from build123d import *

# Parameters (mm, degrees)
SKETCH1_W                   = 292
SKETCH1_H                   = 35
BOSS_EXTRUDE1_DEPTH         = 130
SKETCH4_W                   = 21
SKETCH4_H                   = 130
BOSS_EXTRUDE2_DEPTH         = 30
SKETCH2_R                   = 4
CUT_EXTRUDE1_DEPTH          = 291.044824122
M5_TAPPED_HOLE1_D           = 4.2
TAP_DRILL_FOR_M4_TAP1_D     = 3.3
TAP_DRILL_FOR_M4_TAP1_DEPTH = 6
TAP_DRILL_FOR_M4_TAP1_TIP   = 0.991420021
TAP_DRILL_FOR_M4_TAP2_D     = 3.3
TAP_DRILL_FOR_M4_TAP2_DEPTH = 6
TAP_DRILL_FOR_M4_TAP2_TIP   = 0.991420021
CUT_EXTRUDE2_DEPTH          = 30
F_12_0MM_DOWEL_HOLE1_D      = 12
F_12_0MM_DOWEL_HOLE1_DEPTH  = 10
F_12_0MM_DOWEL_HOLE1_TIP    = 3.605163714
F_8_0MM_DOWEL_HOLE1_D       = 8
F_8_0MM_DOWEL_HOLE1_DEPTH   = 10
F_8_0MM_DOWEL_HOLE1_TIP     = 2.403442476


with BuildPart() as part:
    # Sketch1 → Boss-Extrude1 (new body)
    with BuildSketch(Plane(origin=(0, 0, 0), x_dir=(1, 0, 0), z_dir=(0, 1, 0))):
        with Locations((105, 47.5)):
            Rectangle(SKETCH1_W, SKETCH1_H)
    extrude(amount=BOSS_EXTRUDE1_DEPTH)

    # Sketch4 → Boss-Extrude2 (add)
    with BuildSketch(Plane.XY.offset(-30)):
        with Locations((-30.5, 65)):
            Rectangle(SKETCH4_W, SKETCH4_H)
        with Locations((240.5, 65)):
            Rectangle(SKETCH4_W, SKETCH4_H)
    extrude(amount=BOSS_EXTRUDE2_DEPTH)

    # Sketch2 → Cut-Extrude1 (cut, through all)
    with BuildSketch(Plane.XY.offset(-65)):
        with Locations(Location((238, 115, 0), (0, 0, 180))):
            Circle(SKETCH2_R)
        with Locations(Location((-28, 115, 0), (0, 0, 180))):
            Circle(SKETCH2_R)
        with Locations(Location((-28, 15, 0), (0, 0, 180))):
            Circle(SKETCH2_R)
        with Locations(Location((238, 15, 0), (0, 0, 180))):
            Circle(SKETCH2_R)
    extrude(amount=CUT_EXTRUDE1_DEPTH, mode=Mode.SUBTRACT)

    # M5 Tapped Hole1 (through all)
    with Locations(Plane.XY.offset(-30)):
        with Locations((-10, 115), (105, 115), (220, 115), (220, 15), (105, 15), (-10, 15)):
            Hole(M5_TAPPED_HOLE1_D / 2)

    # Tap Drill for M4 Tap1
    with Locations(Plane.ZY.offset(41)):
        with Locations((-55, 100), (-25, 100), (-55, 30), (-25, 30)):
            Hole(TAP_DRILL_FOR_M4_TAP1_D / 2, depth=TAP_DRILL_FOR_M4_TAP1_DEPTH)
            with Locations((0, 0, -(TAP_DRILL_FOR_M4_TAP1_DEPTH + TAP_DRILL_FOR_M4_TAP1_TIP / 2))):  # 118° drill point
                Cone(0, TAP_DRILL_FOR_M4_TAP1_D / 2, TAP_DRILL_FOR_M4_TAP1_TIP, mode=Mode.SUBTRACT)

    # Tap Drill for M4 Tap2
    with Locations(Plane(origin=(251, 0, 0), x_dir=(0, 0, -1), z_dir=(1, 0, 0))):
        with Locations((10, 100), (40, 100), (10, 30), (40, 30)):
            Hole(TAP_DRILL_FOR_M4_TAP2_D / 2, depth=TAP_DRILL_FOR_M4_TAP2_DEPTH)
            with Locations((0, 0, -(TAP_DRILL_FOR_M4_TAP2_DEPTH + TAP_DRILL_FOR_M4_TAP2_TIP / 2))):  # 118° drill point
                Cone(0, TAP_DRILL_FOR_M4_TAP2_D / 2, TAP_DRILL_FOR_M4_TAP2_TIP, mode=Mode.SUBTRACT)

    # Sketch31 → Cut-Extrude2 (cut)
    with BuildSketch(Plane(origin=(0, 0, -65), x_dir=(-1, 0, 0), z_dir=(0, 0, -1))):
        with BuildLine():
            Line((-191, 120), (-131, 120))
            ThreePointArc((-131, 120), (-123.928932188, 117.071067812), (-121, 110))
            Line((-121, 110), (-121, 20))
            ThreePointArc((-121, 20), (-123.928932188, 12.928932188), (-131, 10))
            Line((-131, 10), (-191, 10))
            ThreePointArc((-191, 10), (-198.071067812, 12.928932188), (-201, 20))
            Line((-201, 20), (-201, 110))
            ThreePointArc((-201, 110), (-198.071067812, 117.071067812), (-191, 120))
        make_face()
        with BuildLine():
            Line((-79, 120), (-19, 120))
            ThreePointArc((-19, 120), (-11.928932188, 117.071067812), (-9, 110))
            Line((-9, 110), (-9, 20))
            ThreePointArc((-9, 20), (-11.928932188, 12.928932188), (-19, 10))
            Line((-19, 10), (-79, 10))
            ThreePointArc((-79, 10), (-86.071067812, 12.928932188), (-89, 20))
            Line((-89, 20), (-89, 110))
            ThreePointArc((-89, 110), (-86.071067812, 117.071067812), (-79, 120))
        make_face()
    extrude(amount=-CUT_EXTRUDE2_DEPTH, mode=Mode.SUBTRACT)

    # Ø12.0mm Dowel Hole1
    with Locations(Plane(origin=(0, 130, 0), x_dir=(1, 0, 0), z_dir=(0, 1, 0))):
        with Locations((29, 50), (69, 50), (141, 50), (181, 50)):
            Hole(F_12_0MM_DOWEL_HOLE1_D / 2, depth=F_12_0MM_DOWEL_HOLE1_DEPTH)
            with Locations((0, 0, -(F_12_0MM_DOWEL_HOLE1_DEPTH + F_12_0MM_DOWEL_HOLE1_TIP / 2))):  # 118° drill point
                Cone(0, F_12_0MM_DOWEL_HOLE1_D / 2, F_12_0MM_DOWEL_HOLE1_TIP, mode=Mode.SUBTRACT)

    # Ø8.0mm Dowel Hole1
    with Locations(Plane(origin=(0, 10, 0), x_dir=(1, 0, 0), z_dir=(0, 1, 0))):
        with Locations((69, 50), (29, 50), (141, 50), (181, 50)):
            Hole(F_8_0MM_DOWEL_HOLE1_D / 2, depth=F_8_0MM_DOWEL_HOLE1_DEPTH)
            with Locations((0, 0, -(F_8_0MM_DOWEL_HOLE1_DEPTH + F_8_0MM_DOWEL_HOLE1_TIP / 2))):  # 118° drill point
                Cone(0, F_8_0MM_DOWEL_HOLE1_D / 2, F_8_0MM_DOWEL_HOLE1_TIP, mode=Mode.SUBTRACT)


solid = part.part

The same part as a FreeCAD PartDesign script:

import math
import FreeCAD as App
import Part
import Sketcher
Q = App.Units.Quantity

doc = App.newDocument("Part")
body = doc.addObject("PartDesign::Body", "Body")

# Sketch on XZ plane
sketch1 = body.newObject("Sketcher::SketchObject", "Sketch")
sketch1.AttachmentSupport = (doc.getObject("XZ_Plane"), [""])
sketch1.MapMode = "FlatFace"
sketch1.addGeometry([
    Part.LineSegment(App.Vector(-41, -65, 0), App.Vector(-41, -30, 0)),
    Part.LineSegment(App.Vector(-41, -30, 0), App.Vector(251, -30, 0)),
    Part.LineSegment(App.Vector(251, -30, 0), App.Vector(251, -65, 0)),
    Part.LineSegment(App.Vector(251, -65, 0), App.Vector(-41, -65, 0)),
], False)
sketch1.addConstraint([
    Sketcher.Constraint("Coincident", 0, 2, 1, 1),
    Sketcher.Constraint("Coincident", 1, 2, 2, 1),
    Sketcher.Constraint("Coincident", 2, 2, 3, 1),
    Sketcher.Constraint("Coincident", 3, 2, 0, 1),
    Sketcher.Constraint("Vertical", 0),
    Sketcher.Constraint("Horizontal", 1),
    Sketcher.Constraint("Vertical", 2),
    Sketcher.Constraint("Horizontal", 3),
    Sketcher.Constraint("DistanceX", 1, 1, 1, 2, Q("292 mm")),
    Sketcher.Constraint("DistanceY", 0, 1, 0, 2, Q("35 mm")),
    Sketcher.Constraint("DistanceX", 0, 2, -1, 1, Q("41 mm")),
    Sketcher.Constraint("DistanceY", 0, 2, -1, 1, Q("30 mm")),
])
pad1 = body.newObject("PartDesign::Pad", "Pad")
pad1.Profile = sketch1
pad1.Length = 130
pad1.Reversed = True

# Sketch on XY plane
sketch2 = body.newObject("Sketcher::SketchObject", "Sketch001")
sketch2.AttachmentSupport = (doc.getObject("XY_Plane"), [""])
sketch2.MapMode = "FlatFace"
sketch2.AttachmentOffset = App.Placement(App.Vector(0, 0, -30), App.Rotation())
sketch2.addGeometry([
    Part.LineSegment(App.Vector(-41, 130, 0), App.Vector(-41, 0, 0)),  # 0
    Part.LineSegment(App.Vector(-41, 0, 0), App.Vector(-20, 0, 0)),  # 1
    Part.LineSegment(App.Vector(-20, 0, 0), App.Vector(-20, 130, 0)),  # 2
    Part.LineSegment(App.Vector(-20, 130, 0), App.Vector(-41, 130, 0)),  # 3
    Part.LineSegment(App.Vector(230, 130, 0), App.Vector(230, 0, 0)),  # 4
    Part.LineSegment(App.Vector(230, 0, 0), App.Vector(251, 0, 0)),  # 5
    Part.LineSegment(App.Vector(251, 0, 0), App.Vector(251, 130, 0)),  # 6
    Part.LineSegment(App.Vector(251, 130, 0), App.Vector(230, 130, 0)),  # 7
], False)
sketch2.addConstraint([
    Sketcher.Constraint("Coincident", 0, 2, 1, 1),
    Sketcher.Constraint("Coincident", 1, 2, 2, 1),
    Sketcher.Constraint("Coincident", 2, 2, 3, 1),
    Sketcher.Constraint("Coincident", 3, 2, 0, 1),
    Sketcher.Constraint("Coincident", 4, 2, 5, 1),
    Sketcher.Constraint("Coincident", 5, 2, 6, 1),
    Sketcher.Constraint("Coincident", 6, 2, 7, 1),
    Sketcher.Constraint("Coincident", 7, 2, 4, 1),
    Sketcher.Constraint("Vertical", 0),
    Sketcher.Constraint("Horizontal", 1),
    Sketcher.Constraint("Vertical", 2),
    Sketcher.Constraint("Horizontal", 3),
    Sketcher.Constraint("Vertical", 4),
    Sketcher.Constraint("Horizontal", 5),
    Sketcher.Constraint("Vertical", 6),
    Sketcher.Constraint("Horizontal", 7),
    Sketcher.Constraint("PointOnObject", 0, 2, -1),
    Sketcher.Constraint("PointOnObject", 4, 2, -1),
    Sketcher.Constraint("Horizontal", 3, 2, 6, 2),
    Sketcher.Constraint("Equal", 3, 5),
    Sketcher.Constraint("DistanceX", 1, 1, 1, 2, Q("21 mm")),
    Sketcher.Constraint("DistanceY", 0, 2, 0, 1, Q("130 mm")),
    Sketcher.Constraint("DistanceX", 0, 2, -1, 1, Q("41 mm")),
    Sketcher.Constraint("DistanceX", -1, 1, 4, 2, Q("230 mm")),
])
pad2 = body.newObject("PartDesign::Pad", "Pad001")
pad2.Profile = sketch2
pad2.Length = 30

# Sketch on XY plane
sketch3 = body.newObject("Sketcher::SketchObject", "Sketch002")
sketch3.AttachmentSupport = (doc.getObject("XY_Plane"), [""])
sketch3.MapMode = "FlatFace"
sketch3.AttachmentOffset = App.Placement(App.Vector(0, 0, -65), App.Rotation())
sketch3.addGeometry([
    Part.Circle(App.Vector(238, 115, 0), App.Vector(0, 0, 1), 4),
    Part.Circle(App.Vector(-28, 115, 0), App.Vector(0, 0, 1), 4),
    Part.Circle(App.Vector(-28, 15, 0), App.Vector(0, 0, 1), 4),
    Part.Circle(App.Vector(238, 15, 0), App.Vector(0, 0, 1), 4),
], False)
sketch3.addConstraint([
    Sketcher.Constraint("Equal", 0, 1),
    Sketcher.Constraint("Equal", 1, 2),
    Sketcher.Constraint("Equal", 2, 3),
    Sketcher.Constraint("Horizontal", 0, 3, 1, 3),
    Sketcher.Constraint("Horizontal", 2, 3, 3, 3),
    Sketcher.Constraint("Vertical", 1, 3, 2, 3),
    Sketcher.Constraint("Vertical", 0, 3, 3, 3),
    Sketcher.Constraint("Diameter", 0, Q("8 mm")),
    Sketcher.Constraint("DistanceX", -1, 1, 0, 3, Q("238 mm")),
    Sketcher.Constraint("DistanceY", -1, 1, 0, 3, Q("115 mm")),
    Sketcher.Constraint("DistanceX", 1, 3, -1, 1, Q("28 mm")),
    Sketcher.Constraint("DistanceY", -1, 1, 2, 3, Q("15 mm")),
])
pocket1 = body.newObject("PartDesign::Pocket", "Pocket")
pocket1.Profile = sketch3
pocket1.Type = "ThroughAll"
pocket1.Reversed = True

# Sketch on XY plane
sketch4 = body.newObject("Sketcher::SketchObject", "Sketch003")
sketch4.AttachmentSupport = (doc.getObject("XY_Plane"), [""])
sketch4.MapMode = "FlatFace"
sketch4.AttachmentOffset = App.Placement(App.Vector(0, 0, -30), App.Rotation())
sketch4.addGeometry([
    Part.Circle(App.Vector(-10, 115, 0), App.Vector(0, 0, 1), 2.1),  # 0
    Part.Circle(App.Vector(105, 115, 0), App.Vector(0, 0, 1), 2.1),  # 1
    Part.Circle(App.Vector(220, 115, 0), App.Vector(0, 0, 1), 2.1),  # 2
    Part.Circle(App.Vector(220, 15, 0), App.Vector(0, 0, 1), 2.1),  # 3
    Part.Circle(App.Vector(105, 15, 0), App.Vector(0, 0, 1), 2.1),  # 4
    Part.Circle(App.Vector(-10, 15, 0), App.Vector(0, 0, 1), 2.1),  # 5
], False)
sketch4.addConstraint([
    Sketcher.Constraint("Equal", 0, 1),
    Sketcher.Constraint("Equal", 1, 2),
    Sketcher.Constraint("Equal", 2, 3),
    Sketcher.Constraint("Equal", 3, 4),
    Sketcher.Constraint("Equal", 4, 5),
    Sketcher.Constraint("Horizontal", 0, 3, 1, 3),
    Sketcher.Constraint("Horizontal", 1, 3, 2, 3),
    Sketcher.Constraint("Horizontal", 3, 3, 4, 3),
    Sketcher.Constraint("Horizontal", 4, 3, 5, 3),
    Sketcher.Constraint("Vertical", 2, 3, 3, 3),
    Sketcher.Constraint("Vertical", 1, 3, 4, 3),
    Sketcher.Constraint("Vertical", 0, 3, 5, 3),
    Sketcher.Constraint("Diameter", 0, Q("4.2 mm")),
    Sketcher.Constraint("DistanceX", 0, 3, -1, 1, Q("10 mm")),
    Sketcher.Constraint("DistanceY", -1, 1, 0, 3, Q("115 mm")),
    Sketcher.Constraint("DistanceX", -1, 1, 1, 3, Q("105 mm")),
    Sketcher.Constraint("DistanceX", -1, 1, 2, 3, Q("220 mm")),
    Sketcher.Constraint("DistanceY", -1, 1, 3, 3, Q("15 mm")),
])
doc.recompute()
hole = body.newObject("PartDesign::Hole", "Hole")
hole.Profile = sketch4
hole.ThreadType = "None"
hole.Diameter = 4.2
hole.DepthType = "ThroughAll"

# Sketch on YZ plane
sketch5 = body.newObject("Sketcher::SketchObject", "Sketch004")
sketch5.AttachmentSupport = (doc.getObject("YZ_Plane"), [""])
sketch5.MapMode = "FlatFace"
sketch5.AttachmentOffset = App.Placement(App.Vector(0, 0, -41), App.Rotation())
sketch5.addGeometry([
    Part.Circle(App.Vector(100, -55, 0), App.Vector(0, 0, 1), 1.6),
    Part.Circle(App.Vector(100, -25, 0), App.Vector(0, 0, 1), 1.6),
    Part.Circle(App.Vector(30, -55, 0), App.Vector(0, 0, 1), 1.6),
    Part.Circle(App.Vector(30, -25, 0), App.Vector(0, 0, 1), 1.6),
], False)
sketch5.addConstraint([
    Sketcher.Constraint("Equal", 0, 1),
    Sketcher.Constraint("Equal", 1, 2),
    Sketcher.Constraint("Equal", 2, 3),
    Sketcher.Constraint("Horizontal", 0, 3, 2, 3),
    Sketcher.Constraint("Horizontal", 1, 3, 3, 3),
    Sketcher.Constraint("Vertical", 0, 3, 1, 3),
    Sketcher.Constraint("Vertical", 2, 3, 3, 3),
    Sketcher.Constraint("Diameter", 0, Q("3.3 mm")),
    Sketcher.Constraint("DistanceX", -1, 1, 0, 3, Q("100 mm")),
    Sketcher.Constraint("DistanceY", 0, 3, -1, 1, Q("55 mm")),
    Sketcher.Constraint("DistanceY", 1, 3, -1, 1, Q("25 mm")),
    Sketcher.Constraint("DistanceX", -1, 1, 2, 3, Q("30 mm")),
])
doc.recompute()
hole2 = body.newObject("PartDesign::Hole", "Hole001")
hole2.Profile = sketch5
hole2.ThreadType = "None"
hole2.Diameter = 3.3
hole2.DepthType = "Dimension"
hole2.Depth = 6
hole2.DrillPoint = "Angled"
hole2.DrillPointAngle = 118
hole2.Reversed = True

# Sketch on YZ plane
sketch6 = body.newObject("Sketcher::SketchObject", "Sketch005")
sketch6.AttachmentSupport = (doc.getObject("YZ_Plane"), [""])
sketch6.MapMode = "FlatFace"
sketch6.AttachmentOffset = App.Placement(App.Vector(0, 0, 251), App.Rotation())
sketch6.addGeometry([
    Part.Circle(App.Vector(100, -10, 0), App.Vector(0, 0, 1), 1.6),
    Part.Circle(App.Vector(100, -40, 0), App.Vector(0, 0, 1), 1.6),
    Part.Circle(App.Vector(30, -10, 0), App.Vector(0, 0, 1), 1.6),
    Part.Circle(App.Vector(30, -40, 0), App.Vector(0, 0, 1), 1.6),
], False)
sketch6.addConstraint([
    Sketcher.Constraint("Equal", 0, 1),
    Sketcher.Constraint("Equal", 1, 2),
    Sketcher.Constraint("Equal", 2, 3),
    Sketcher.Constraint("Horizontal", 0, 3, 2, 3),
    Sketcher.Constraint("Horizontal", 1, 3, 3, 3),
    Sketcher.Constraint("Vertical", 0, 3, 1, 3),
    Sketcher.Constraint("Vertical", 2, 3, 3, 3),
    Sketcher.Constraint("Diameter", 0, Q("3.3 mm")),
    Sketcher.Constraint("DistanceX", -1, 1, 0, 3, Q("100 mm")),
    Sketcher.Constraint("DistanceY", 0, 3, -1, 1, Q("10 mm")),
    Sketcher.Constraint("DistanceY", 1, 3, -1, 1, Q("40 mm")),
    Sketcher.Constraint("DistanceX", -1, 1, 2, 3, Q("30 mm")),
])
doc.recompute()
hole3 = body.newObject("PartDesign::Hole", "Hole002")
hole3.Profile = sketch6
hole3.ThreadType = "None"
hole3.Diameter = 3.3
hole3.DepthType = "Dimension"
hole3.Depth = 6
hole3.DrillPoint = "Angled"
hole3.DrillPointAngle = 118

# Sketch on XY plane
sketch7 = body.newObject("Sketcher::SketchObject", "Sketch006")
sketch7.AttachmentSupport = (doc.getObject("XY_Plane"), [""])
sketch7.MapMode = "FlatFace"
sketch7.AttachmentOffset = App.Placement(App.Vector(0, 0, -65), App.Rotation())
sketch7.addGeometry([
    Part.LineSegment(App.Vector(131, 120, 0), App.Vector(191, 120, 0)),  # 0
    Part.ArcOfCircle(Part.Circle(App.Vector(191, 110, 0), App.Vector(0, 0, 1), 10), math.radians(0), math.radians(90)),  # 1
    Part.LineSegment(App.Vector(201, 110, 0), App.Vector(201, 20, 0)),  # 2
    Part.ArcOfCircle(Part.Circle(App.Vector(191, 20, 0), App.Vector(0, 0, 1), 10), math.radians(-90), math.radians(0)),  # 3
    Part.LineSegment(App.Vector(191, 10, 0), App.Vector(131, 10, 0)),  # 4
    Part.ArcOfCircle(Part.Circle(App.Vector(131, 20, 0), App.Vector(0, 0, 1), 10), math.radians(180), math.radians(270)),  # 5
    Part.LineSegment(App.Vector(121, 20, 0), App.Vector(121, 110, 0)),  # 6
    Part.ArcOfCircle(Part.Circle(App.Vector(131, 110, 0), App.Vector(0, 0, 1), 10), math.radians(90), math.radians(180)),  # 7
    Part.LineSegment(App.Vector(19, 120, 0), App.Vector(79, 120, 0)),  # 8
    Part.ArcOfCircle(Part.Circle(App.Vector(79, 110, 0), App.Vector(0, 0, 1), 10), math.radians(0), math.radians(90)),  # 9
    Part.LineSegment(App.Vector(89, 110, 0), App.Vector(89, 20, 0)),  # 10
    Part.ArcOfCircle(Part.Circle(App.Vector(79, 20, 0), App.Vector(0, 0, 1), 10), math.radians(-90), math.radians(0)),  # 11
    Part.LineSegment(App.Vector(79, 10, 0), App.Vector(19, 10, 0)),  # 12
    Part.ArcOfCircle(Part.Circle(App.Vector(19, 20, 0), App.Vector(0, 0, 1), 10), math.radians(180), math.radians(270)),  # 13
    Part.LineSegment(App.Vector(9, 20, 0), App.Vector(9, 110, 0)),  # 14
    Part.ArcOfCircle(Part.Circle(App.Vector(19, 110, 0), App.Vector(0, 0, 1), 10), math.radians(90), math.radians(180)),  # 15
], False)
sketch7.addConstraint([
    Sketcher.Constraint("Tangent", 0, 2, 1, 2),
    Sketcher.Constraint("Tangent", 1, 1, 2, 1),
    Sketcher.Constraint("Tangent", 2, 2, 3, 2),
    Sketcher.Constraint("Tangent", 3, 1, 4, 1),
    Sketcher.Constraint("Tangent", 4, 2, 5, 2),
    Sketcher.Constraint("Tangent", 5, 1, 6, 1),
    Sketcher.Constraint("Tangent", 6, 2, 7, 2),
    Sketcher.Constraint("Tangent", 7, 1, 0, 1),
    Sketcher.Constraint("Tangent", 8, 2, 9, 2),
    Sketcher.Constraint("Tangent", 9, 1, 10, 1),
    Sketcher.Constraint("Tangent", 10, 2, 11, 2),
    Sketcher.Constraint("Tangent", 11, 1, 12, 1),
    Sketcher.Constraint("Tangent", 12, 2, 13, 2),
    Sketcher.Constraint("Tangent", 13, 1, 14, 1),
    Sketcher.Constraint("Tangent", 14, 2, 15, 2),
    Sketcher.Constraint("Tangent", 15, 1, 8, 1),
    Sketcher.Constraint("Horizontal", 0),
    Sketcher.Constraint("Vertical", 2),
    Sketcher.Constraint("Horizontal", 4),
    Sketcher.Constraint("Vertical", 6),
    Sketcher.Constraint("Horizontal", 8),
    Sketcher.Constraint("Vertical", 10),
    Sketcher.Constraint("Horizontal", 12),
    Sketcher.Constraint("Vertical", 14),
    Sketcher.Constraint("Equal", 1, 3),
    Sketcher.Constraint("Equal", 3, 5),
    Sketcher.Constraint("Equal", 5, 7),
    Sketcher.Constraint("Equal", 7, 9),
    Sketcher.Constraint("Equal", 9, 11),
    Sketcher.Constraint("Equal", 11, 13),
    Sketcher.Constraint("Equal", 13, 15),
    Sketcher.Constraint("Horizontal", 7, 3, 9, 3),
    Sketcher.Constraint("Horizontal", 5, 3, 11, 3),
    Sketcher.Constraint("Equal", 4, 8),
    Sketcher.Constraint("Radius", 1, Q("10 mm")),
    Sketcher.Constraint("DistanceX", 0, 1, 0, 2, Q("60 mm")),
    Sketcher.Constraint("DistanceY", 2, 2, 2, 1, Q("90 mm")),
    Sketcher.Constraint("DistanceX", -1, 1, 1, 3, Q("191 mm")),
    Sketcher.Constraint("DistanceY", -1, 1, 1, 3, Q("110 mm")),
    Sketcher.Constraint("DistanceX", -1, 1, 9, 3, Q("79 mm")),
])
pocket2 = body.newObject("PartDesign::Pocket", "Pocket001")
pocket2.Profile = sketch7
pocket2.Length = 30
pocket2.Reversed = True

# Sketch on XZ plane
sketch8 = body.newObject("Sketcher::SketchObject", "Sketch007")
sketch8.AttachmentSupport = (doc.getObject("XZ_Plane"), [""])
sketch8.MapMode = "FlatFace"
sketch8.AttachmentOffset = App.Placement(App.Vector(0, 0, -130), App.Rotation())
sketch8.addGeometry([
    Part.Circle(App.Vector(29, -50, 0), App.Vector(0, 0, 1), 6),
    Part.Circle(App.Vector(69, -50, 0), App.Vector(0, 0, 1), 6),
    Part.Circle(App.Vector(141, -50, 0), App.Vector(0, 0, 1), 6),
    Part.Circle(App.Vector(181, -50, 0), App.Vector(0, 0, 1), 6),
], False)
sketch8.addConstraint([
    Sketcher.Constraint("Equal", 0, 1),
    Sketcher.Constraint("Equal", 1, 2),
    Sketcher.Constraint("Equal", 2, 3),
    Sketcher.Constraint("Horizontal", 0, 3, 1, 3),
    Sketcher.Constraint("Horizontal", 1, 3, 2, 3),
    Sketcher.Constraint("Horizontal", 2, 3, 3, 3),
    Sketcher.Constraint("Diameter", 0, Q("12 mm")),
    Sketcher.Constraint("DistanceX", -1, 1, 0, 3, Q("29 mm")),
    Sketcher.Constraint("DistanceY", 0, 3, -1, 1, Q("50 mm")),
    Sketcher.Constraint("DistanceX", -1, 1, 1, 3, Q("69 mm")),
    Sketcher.Constraint("DistanceX", -1, 1, 2, 3, Q("141 mm")),
    Sketcher.Constraint("DistanceX", -1, 1, 3, 3, Q("181 mm")),
])
doc.recompute()
hole4 = body.newObject("PartDesign::Hole", "Hole003")
hole4.Profile = sketch8
hole4.ThreadType = "None"
hole4.Diameter = 12
hole4.DepthType = "Dimension"
hole4.Depth = 10
hole4.DrillPoint = "Angled"
hole4.DrillPointAngle = 118
hole4.Reversed = True

# Sketch on XZ plane
sketch9 = body.newObject("Sketcher::SketchObject", "Sketch008")
sketch9.AttachmentSupport = (doc.getObject("XZ_Plane"), [""])
sketch9.MapMode = "FlatFace"
sketch9.AttachmentOffset = App.Placement(App.Vector(0, 0, -10), App.Rotation())
sketch9.addGeometry([
    Part.Circle(App.Vector(69, -50, 0), App.Vector(0, 0, 1), 4),
    Part.Circle(App.Vector(29, -50, 0), App.Vector(0, 0, 1), 4),
    Part.Circle(App.Vector(141, -50, 0), App.Vector(0, 0, 1), 4),
    Part.Circle(App.Vector(181, -50, 0), App.Vector(0, 0, 1), 4),
], False)
sketch9.addConstraint([
    Sketcher.Constraint("Equal", 0, 1),
    Sketcher.Constraint("Equal", 1, 2),
    Sketcher.Constraint("Equal", 2, 3),
    Sketcher.Constraint("Horizontal", 0, 3, 1, 3),
    Sketcher.Constraint("Horizontal", 1, 3, 2, 3),
    Sketcher.Constraint("Horizontal", 2, 3, 3, 3),
    Sketcher.Constraint("Diameter", 0, Q("8 mm")),
    Sketcher.Constraint("DistanceX", -1, 1, 0, 3, Q("69 mm")),
    Sketcher.Constraint("DistanceY", 0, 3, -1, 1, Q("50 mm")),
    Sketcher.Constraint("DistanceX", -1, 1, 1, 3, Q("29 mm")),
    Sketcher.Constraint("DistanceX", -1, 1, 2, 3, Q("141 mm")),
    Sketcher.Constraint("DistanceX", -1, 1, 3, 3, Q("181 mm")),
])
doc.recompute()
hole5 = body.newObject("PartDesign::Hole", "Hole004")
hole5.Profile = sketch9
hole5.ThreadType = "None"
hole5.Diameter = 8
hole5.DepthType = "Dimension"
hole5.Depth = 10
hole5.DrillPoint = "Angled"
hole5.DrillPointAngle = 118
hole5.Reversed = True

doc.recompute()
